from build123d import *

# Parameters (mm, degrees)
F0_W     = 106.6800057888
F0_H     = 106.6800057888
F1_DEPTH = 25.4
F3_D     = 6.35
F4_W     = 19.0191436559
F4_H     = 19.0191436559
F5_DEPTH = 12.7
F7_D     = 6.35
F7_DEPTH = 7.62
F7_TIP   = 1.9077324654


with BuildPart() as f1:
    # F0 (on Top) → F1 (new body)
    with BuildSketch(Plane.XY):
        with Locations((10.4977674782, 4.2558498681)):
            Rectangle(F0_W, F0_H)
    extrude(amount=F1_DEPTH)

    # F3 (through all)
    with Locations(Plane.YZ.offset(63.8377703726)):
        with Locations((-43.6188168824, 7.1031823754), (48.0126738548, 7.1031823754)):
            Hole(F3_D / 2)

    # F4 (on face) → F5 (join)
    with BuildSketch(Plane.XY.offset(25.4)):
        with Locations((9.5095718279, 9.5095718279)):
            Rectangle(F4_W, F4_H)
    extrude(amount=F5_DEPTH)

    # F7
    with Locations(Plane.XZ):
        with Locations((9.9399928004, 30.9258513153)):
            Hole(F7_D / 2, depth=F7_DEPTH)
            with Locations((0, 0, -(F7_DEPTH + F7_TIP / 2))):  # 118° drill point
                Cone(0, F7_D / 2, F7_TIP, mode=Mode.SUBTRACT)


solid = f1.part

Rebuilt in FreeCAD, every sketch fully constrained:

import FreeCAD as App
import Part
import Sketcher
Q = App.Units.Quantity

doc = App.newDocument("Part")
body = doc.addObject("PartDesign::Body", "Body")

sketch1 = body.newObject("Sketcher::SketchObject", "Sketch")
sketch1.AttachmentSupport = (doc.getObject("XY_Plane"), [""])
sketch1.MapMode = "FlatFace"
sketch1.addGeometry([
    Part.LineSegment(App.Vector(-42.842235, 57.595853, 0), App.Vector(-42.842235, -49.084153, 0)),
    Part.LineSegment(App.Vector(-42.842235, -49.084153, 0), App.Vector(63.83777, -49.084153, 0)),
    Part.LineSegment(App.Vector(63.83777, -49.084153, 0), App.Vector(63.83777, 57.595853, 0)),
    Part.LineSegment(App.Vector(63.83777, 57.595853, 0), App.Vector(-42.842235, 57.595853, 0)),
], False)
sketch1.addConstraint([
    Sketcher.Constraint("Coincident", 0, 2, 1, 1),
    Sketcher.Constraint("Coincident", 1, 2, 2, 1),
    Sketcher.Constraint("Coincident", 2, 2, 3, 1),
    Sketcher.Constraint("Coincident", 3, 2, 0, 1),
    Sketcher.Constraint("Vertical", 0),
    Sketcher.Constraint("Horizontal", 1),
    Sketcher.Constraint("Vertical", 2),
    Sketcher.Constraint("Horizontal", 3),
    Sketcher.Constraint("Equal", 3, 0),
    Sketcher.Constraint("DistanceX", 1, 1, 1, 2, 106.680006),
    Sketcher.Constraint("DistanceX", -1, 1, 1, 2, 63.83777),
    Sketcher.Constraint("DistanceY", 0, 2, -1, 1, 49.084153),
])
pad1 = body.newObject("PartDesign::Pad", "Pad")
pad1.Profile = sketch1
pad1.Length = Q("1 in")

sketch2 = body.newObject("Sketcher::SketchObject", "Sketch001")
sketch2.AttachmentSupport = (doc.getObject("YZ_Plane"), [""])
sketch2.MapMode = "FlatFace"
sketch2.AttachmentOffset = App.Placement(App.Vector(0, 0, 63.83777), App.Rotation())
sketch2.addGeometry([
    Part.Circle(App.Vector(-43.618817, 7.103182, 0), App.Vector(0, 0, 1), 3.175),
    Part.Circle(App.Vector(48.012674, 7.103182, 0), App.Vector(0, 0, 1), 3.175),
], False)
sketch2.addConstraint([
    Sketcher.Constraint("Equal", 0, 1),
    Sketcher.Constraint("Horizontal", 0, 3, 1, 3),
    Sketcher.Constraint("Diameter", 0, Q("0.25 in")),
    Sketcher.Constraint("DistanceX", 0, 3, 1, 3, 91.631491),
    Sketcher.Constraint("DistanceX", 0, 3, -1, 1, 43.618817),
    Sketcher.Constraint("DistanceY", -1, 1, 0, 3, 7.103182),
])
doc.recompute()
hole = body.newObject("PartDesign::Hole", "Hole")
hole.Profile = sketch2
hole.ThreadType = "None"
hole.Diameter = Q("0.25 in")
hole.DepthType = "ThroughAll"

sketch3 = body.newObject("Sketcher::SketchObject", "Sketch002")
sketch3.AttachmentSupport = (doc.getObject("XY_Plane"), [""])
sketch3.MapMode = "FlatFace"
sketch3.AttachmentOffset = App.Placement(App.Vector(0, 0, 1 * 25.4), App.Rotation())
sketch3.addGeometry([
    Part.LineSegment(App.Vector(0, 19.019144, 0), App.Vector(0, 0, 0)),
    Part.LineSegment(App.Vector(0, 0, 0), App.Vector(19.019144, 0, 0)),
    Part.LineSegment(App.Vector(19.019144, 0, 0), App.Vector(19.019144, 19.019144, 0)),
    Part.LineSegment(App.Vector(19.019144, 19.019144, 0), App.Vector(0, 19.019144, 0)),
], False)
sketch3.addConstraint([
    Sketcher.Constraint("Coincident", 0, 2, 1, 1),
    Sketcher.Constraint("Coincident", 1, 2, 2, 1),
    Sketcher.Constraint("Coincident", 2, 2, 3, 1),
    Sketcher.Constraint("Coincident", 3, 2, 0, 1),
    Sketcher.Constraint("Vertical", 0),
    Sketcher.Constraint("Horizontal", 1),
    Sketcher.Constraint("Vertical", 2),
    Sketcher.Constraint("Horizontal", 3),
    Sketcher.Constraint("Coincident", 0, 2, -1, 1),
    Sketcher.Constraint("Equal", 3, 0),
    Sketcher.Constraint("DistanceX", 1, 1, 1, 2, 19.019144),
])
pad2 = body.newObject("PartDesign::Pad", "Pad001")
pad2.Profile = sketch3
pad2.Length = Q("0.5 in")

sketch4 = body.newObject("Sketcher::SketchObject", "Sketch003")
sketch4.AttachmentSupport = (doc.getObject("XZ_Plane"), [""])
sketch4.MapMode = "FlatFace"
sketch4.addGeometry(Part.Circle(App.Vector(9.939993, 30.925851, 0), App.Vector(0, 0, 1), 3.175), False)
sketch4.addConstraint([
    Sketcher.Constraint("Diameter", 0, Q("0.25 in")),
    Sketcher.Constraint("DistanceY", -1, 1, 0, 3, 30.925851),
    Sketcher.Constraint("DistanceX", -1, 1, 0, 3, 9.939993),
])
doc.recompute()
hole2 = body.newObject("PartDesign::Hole", "Hole001")
hole2.Profile = sketch4
hole2.ThreadType = "None"
hole2.Diameter = Q("0.25 in")
hole2.DepthType = "Dimension"
hole2.Depth = Q("0.3 in")
hole2.DrillPoint = "Angled"
hole2.DrillPointAngle = 118

doc.recompute()
